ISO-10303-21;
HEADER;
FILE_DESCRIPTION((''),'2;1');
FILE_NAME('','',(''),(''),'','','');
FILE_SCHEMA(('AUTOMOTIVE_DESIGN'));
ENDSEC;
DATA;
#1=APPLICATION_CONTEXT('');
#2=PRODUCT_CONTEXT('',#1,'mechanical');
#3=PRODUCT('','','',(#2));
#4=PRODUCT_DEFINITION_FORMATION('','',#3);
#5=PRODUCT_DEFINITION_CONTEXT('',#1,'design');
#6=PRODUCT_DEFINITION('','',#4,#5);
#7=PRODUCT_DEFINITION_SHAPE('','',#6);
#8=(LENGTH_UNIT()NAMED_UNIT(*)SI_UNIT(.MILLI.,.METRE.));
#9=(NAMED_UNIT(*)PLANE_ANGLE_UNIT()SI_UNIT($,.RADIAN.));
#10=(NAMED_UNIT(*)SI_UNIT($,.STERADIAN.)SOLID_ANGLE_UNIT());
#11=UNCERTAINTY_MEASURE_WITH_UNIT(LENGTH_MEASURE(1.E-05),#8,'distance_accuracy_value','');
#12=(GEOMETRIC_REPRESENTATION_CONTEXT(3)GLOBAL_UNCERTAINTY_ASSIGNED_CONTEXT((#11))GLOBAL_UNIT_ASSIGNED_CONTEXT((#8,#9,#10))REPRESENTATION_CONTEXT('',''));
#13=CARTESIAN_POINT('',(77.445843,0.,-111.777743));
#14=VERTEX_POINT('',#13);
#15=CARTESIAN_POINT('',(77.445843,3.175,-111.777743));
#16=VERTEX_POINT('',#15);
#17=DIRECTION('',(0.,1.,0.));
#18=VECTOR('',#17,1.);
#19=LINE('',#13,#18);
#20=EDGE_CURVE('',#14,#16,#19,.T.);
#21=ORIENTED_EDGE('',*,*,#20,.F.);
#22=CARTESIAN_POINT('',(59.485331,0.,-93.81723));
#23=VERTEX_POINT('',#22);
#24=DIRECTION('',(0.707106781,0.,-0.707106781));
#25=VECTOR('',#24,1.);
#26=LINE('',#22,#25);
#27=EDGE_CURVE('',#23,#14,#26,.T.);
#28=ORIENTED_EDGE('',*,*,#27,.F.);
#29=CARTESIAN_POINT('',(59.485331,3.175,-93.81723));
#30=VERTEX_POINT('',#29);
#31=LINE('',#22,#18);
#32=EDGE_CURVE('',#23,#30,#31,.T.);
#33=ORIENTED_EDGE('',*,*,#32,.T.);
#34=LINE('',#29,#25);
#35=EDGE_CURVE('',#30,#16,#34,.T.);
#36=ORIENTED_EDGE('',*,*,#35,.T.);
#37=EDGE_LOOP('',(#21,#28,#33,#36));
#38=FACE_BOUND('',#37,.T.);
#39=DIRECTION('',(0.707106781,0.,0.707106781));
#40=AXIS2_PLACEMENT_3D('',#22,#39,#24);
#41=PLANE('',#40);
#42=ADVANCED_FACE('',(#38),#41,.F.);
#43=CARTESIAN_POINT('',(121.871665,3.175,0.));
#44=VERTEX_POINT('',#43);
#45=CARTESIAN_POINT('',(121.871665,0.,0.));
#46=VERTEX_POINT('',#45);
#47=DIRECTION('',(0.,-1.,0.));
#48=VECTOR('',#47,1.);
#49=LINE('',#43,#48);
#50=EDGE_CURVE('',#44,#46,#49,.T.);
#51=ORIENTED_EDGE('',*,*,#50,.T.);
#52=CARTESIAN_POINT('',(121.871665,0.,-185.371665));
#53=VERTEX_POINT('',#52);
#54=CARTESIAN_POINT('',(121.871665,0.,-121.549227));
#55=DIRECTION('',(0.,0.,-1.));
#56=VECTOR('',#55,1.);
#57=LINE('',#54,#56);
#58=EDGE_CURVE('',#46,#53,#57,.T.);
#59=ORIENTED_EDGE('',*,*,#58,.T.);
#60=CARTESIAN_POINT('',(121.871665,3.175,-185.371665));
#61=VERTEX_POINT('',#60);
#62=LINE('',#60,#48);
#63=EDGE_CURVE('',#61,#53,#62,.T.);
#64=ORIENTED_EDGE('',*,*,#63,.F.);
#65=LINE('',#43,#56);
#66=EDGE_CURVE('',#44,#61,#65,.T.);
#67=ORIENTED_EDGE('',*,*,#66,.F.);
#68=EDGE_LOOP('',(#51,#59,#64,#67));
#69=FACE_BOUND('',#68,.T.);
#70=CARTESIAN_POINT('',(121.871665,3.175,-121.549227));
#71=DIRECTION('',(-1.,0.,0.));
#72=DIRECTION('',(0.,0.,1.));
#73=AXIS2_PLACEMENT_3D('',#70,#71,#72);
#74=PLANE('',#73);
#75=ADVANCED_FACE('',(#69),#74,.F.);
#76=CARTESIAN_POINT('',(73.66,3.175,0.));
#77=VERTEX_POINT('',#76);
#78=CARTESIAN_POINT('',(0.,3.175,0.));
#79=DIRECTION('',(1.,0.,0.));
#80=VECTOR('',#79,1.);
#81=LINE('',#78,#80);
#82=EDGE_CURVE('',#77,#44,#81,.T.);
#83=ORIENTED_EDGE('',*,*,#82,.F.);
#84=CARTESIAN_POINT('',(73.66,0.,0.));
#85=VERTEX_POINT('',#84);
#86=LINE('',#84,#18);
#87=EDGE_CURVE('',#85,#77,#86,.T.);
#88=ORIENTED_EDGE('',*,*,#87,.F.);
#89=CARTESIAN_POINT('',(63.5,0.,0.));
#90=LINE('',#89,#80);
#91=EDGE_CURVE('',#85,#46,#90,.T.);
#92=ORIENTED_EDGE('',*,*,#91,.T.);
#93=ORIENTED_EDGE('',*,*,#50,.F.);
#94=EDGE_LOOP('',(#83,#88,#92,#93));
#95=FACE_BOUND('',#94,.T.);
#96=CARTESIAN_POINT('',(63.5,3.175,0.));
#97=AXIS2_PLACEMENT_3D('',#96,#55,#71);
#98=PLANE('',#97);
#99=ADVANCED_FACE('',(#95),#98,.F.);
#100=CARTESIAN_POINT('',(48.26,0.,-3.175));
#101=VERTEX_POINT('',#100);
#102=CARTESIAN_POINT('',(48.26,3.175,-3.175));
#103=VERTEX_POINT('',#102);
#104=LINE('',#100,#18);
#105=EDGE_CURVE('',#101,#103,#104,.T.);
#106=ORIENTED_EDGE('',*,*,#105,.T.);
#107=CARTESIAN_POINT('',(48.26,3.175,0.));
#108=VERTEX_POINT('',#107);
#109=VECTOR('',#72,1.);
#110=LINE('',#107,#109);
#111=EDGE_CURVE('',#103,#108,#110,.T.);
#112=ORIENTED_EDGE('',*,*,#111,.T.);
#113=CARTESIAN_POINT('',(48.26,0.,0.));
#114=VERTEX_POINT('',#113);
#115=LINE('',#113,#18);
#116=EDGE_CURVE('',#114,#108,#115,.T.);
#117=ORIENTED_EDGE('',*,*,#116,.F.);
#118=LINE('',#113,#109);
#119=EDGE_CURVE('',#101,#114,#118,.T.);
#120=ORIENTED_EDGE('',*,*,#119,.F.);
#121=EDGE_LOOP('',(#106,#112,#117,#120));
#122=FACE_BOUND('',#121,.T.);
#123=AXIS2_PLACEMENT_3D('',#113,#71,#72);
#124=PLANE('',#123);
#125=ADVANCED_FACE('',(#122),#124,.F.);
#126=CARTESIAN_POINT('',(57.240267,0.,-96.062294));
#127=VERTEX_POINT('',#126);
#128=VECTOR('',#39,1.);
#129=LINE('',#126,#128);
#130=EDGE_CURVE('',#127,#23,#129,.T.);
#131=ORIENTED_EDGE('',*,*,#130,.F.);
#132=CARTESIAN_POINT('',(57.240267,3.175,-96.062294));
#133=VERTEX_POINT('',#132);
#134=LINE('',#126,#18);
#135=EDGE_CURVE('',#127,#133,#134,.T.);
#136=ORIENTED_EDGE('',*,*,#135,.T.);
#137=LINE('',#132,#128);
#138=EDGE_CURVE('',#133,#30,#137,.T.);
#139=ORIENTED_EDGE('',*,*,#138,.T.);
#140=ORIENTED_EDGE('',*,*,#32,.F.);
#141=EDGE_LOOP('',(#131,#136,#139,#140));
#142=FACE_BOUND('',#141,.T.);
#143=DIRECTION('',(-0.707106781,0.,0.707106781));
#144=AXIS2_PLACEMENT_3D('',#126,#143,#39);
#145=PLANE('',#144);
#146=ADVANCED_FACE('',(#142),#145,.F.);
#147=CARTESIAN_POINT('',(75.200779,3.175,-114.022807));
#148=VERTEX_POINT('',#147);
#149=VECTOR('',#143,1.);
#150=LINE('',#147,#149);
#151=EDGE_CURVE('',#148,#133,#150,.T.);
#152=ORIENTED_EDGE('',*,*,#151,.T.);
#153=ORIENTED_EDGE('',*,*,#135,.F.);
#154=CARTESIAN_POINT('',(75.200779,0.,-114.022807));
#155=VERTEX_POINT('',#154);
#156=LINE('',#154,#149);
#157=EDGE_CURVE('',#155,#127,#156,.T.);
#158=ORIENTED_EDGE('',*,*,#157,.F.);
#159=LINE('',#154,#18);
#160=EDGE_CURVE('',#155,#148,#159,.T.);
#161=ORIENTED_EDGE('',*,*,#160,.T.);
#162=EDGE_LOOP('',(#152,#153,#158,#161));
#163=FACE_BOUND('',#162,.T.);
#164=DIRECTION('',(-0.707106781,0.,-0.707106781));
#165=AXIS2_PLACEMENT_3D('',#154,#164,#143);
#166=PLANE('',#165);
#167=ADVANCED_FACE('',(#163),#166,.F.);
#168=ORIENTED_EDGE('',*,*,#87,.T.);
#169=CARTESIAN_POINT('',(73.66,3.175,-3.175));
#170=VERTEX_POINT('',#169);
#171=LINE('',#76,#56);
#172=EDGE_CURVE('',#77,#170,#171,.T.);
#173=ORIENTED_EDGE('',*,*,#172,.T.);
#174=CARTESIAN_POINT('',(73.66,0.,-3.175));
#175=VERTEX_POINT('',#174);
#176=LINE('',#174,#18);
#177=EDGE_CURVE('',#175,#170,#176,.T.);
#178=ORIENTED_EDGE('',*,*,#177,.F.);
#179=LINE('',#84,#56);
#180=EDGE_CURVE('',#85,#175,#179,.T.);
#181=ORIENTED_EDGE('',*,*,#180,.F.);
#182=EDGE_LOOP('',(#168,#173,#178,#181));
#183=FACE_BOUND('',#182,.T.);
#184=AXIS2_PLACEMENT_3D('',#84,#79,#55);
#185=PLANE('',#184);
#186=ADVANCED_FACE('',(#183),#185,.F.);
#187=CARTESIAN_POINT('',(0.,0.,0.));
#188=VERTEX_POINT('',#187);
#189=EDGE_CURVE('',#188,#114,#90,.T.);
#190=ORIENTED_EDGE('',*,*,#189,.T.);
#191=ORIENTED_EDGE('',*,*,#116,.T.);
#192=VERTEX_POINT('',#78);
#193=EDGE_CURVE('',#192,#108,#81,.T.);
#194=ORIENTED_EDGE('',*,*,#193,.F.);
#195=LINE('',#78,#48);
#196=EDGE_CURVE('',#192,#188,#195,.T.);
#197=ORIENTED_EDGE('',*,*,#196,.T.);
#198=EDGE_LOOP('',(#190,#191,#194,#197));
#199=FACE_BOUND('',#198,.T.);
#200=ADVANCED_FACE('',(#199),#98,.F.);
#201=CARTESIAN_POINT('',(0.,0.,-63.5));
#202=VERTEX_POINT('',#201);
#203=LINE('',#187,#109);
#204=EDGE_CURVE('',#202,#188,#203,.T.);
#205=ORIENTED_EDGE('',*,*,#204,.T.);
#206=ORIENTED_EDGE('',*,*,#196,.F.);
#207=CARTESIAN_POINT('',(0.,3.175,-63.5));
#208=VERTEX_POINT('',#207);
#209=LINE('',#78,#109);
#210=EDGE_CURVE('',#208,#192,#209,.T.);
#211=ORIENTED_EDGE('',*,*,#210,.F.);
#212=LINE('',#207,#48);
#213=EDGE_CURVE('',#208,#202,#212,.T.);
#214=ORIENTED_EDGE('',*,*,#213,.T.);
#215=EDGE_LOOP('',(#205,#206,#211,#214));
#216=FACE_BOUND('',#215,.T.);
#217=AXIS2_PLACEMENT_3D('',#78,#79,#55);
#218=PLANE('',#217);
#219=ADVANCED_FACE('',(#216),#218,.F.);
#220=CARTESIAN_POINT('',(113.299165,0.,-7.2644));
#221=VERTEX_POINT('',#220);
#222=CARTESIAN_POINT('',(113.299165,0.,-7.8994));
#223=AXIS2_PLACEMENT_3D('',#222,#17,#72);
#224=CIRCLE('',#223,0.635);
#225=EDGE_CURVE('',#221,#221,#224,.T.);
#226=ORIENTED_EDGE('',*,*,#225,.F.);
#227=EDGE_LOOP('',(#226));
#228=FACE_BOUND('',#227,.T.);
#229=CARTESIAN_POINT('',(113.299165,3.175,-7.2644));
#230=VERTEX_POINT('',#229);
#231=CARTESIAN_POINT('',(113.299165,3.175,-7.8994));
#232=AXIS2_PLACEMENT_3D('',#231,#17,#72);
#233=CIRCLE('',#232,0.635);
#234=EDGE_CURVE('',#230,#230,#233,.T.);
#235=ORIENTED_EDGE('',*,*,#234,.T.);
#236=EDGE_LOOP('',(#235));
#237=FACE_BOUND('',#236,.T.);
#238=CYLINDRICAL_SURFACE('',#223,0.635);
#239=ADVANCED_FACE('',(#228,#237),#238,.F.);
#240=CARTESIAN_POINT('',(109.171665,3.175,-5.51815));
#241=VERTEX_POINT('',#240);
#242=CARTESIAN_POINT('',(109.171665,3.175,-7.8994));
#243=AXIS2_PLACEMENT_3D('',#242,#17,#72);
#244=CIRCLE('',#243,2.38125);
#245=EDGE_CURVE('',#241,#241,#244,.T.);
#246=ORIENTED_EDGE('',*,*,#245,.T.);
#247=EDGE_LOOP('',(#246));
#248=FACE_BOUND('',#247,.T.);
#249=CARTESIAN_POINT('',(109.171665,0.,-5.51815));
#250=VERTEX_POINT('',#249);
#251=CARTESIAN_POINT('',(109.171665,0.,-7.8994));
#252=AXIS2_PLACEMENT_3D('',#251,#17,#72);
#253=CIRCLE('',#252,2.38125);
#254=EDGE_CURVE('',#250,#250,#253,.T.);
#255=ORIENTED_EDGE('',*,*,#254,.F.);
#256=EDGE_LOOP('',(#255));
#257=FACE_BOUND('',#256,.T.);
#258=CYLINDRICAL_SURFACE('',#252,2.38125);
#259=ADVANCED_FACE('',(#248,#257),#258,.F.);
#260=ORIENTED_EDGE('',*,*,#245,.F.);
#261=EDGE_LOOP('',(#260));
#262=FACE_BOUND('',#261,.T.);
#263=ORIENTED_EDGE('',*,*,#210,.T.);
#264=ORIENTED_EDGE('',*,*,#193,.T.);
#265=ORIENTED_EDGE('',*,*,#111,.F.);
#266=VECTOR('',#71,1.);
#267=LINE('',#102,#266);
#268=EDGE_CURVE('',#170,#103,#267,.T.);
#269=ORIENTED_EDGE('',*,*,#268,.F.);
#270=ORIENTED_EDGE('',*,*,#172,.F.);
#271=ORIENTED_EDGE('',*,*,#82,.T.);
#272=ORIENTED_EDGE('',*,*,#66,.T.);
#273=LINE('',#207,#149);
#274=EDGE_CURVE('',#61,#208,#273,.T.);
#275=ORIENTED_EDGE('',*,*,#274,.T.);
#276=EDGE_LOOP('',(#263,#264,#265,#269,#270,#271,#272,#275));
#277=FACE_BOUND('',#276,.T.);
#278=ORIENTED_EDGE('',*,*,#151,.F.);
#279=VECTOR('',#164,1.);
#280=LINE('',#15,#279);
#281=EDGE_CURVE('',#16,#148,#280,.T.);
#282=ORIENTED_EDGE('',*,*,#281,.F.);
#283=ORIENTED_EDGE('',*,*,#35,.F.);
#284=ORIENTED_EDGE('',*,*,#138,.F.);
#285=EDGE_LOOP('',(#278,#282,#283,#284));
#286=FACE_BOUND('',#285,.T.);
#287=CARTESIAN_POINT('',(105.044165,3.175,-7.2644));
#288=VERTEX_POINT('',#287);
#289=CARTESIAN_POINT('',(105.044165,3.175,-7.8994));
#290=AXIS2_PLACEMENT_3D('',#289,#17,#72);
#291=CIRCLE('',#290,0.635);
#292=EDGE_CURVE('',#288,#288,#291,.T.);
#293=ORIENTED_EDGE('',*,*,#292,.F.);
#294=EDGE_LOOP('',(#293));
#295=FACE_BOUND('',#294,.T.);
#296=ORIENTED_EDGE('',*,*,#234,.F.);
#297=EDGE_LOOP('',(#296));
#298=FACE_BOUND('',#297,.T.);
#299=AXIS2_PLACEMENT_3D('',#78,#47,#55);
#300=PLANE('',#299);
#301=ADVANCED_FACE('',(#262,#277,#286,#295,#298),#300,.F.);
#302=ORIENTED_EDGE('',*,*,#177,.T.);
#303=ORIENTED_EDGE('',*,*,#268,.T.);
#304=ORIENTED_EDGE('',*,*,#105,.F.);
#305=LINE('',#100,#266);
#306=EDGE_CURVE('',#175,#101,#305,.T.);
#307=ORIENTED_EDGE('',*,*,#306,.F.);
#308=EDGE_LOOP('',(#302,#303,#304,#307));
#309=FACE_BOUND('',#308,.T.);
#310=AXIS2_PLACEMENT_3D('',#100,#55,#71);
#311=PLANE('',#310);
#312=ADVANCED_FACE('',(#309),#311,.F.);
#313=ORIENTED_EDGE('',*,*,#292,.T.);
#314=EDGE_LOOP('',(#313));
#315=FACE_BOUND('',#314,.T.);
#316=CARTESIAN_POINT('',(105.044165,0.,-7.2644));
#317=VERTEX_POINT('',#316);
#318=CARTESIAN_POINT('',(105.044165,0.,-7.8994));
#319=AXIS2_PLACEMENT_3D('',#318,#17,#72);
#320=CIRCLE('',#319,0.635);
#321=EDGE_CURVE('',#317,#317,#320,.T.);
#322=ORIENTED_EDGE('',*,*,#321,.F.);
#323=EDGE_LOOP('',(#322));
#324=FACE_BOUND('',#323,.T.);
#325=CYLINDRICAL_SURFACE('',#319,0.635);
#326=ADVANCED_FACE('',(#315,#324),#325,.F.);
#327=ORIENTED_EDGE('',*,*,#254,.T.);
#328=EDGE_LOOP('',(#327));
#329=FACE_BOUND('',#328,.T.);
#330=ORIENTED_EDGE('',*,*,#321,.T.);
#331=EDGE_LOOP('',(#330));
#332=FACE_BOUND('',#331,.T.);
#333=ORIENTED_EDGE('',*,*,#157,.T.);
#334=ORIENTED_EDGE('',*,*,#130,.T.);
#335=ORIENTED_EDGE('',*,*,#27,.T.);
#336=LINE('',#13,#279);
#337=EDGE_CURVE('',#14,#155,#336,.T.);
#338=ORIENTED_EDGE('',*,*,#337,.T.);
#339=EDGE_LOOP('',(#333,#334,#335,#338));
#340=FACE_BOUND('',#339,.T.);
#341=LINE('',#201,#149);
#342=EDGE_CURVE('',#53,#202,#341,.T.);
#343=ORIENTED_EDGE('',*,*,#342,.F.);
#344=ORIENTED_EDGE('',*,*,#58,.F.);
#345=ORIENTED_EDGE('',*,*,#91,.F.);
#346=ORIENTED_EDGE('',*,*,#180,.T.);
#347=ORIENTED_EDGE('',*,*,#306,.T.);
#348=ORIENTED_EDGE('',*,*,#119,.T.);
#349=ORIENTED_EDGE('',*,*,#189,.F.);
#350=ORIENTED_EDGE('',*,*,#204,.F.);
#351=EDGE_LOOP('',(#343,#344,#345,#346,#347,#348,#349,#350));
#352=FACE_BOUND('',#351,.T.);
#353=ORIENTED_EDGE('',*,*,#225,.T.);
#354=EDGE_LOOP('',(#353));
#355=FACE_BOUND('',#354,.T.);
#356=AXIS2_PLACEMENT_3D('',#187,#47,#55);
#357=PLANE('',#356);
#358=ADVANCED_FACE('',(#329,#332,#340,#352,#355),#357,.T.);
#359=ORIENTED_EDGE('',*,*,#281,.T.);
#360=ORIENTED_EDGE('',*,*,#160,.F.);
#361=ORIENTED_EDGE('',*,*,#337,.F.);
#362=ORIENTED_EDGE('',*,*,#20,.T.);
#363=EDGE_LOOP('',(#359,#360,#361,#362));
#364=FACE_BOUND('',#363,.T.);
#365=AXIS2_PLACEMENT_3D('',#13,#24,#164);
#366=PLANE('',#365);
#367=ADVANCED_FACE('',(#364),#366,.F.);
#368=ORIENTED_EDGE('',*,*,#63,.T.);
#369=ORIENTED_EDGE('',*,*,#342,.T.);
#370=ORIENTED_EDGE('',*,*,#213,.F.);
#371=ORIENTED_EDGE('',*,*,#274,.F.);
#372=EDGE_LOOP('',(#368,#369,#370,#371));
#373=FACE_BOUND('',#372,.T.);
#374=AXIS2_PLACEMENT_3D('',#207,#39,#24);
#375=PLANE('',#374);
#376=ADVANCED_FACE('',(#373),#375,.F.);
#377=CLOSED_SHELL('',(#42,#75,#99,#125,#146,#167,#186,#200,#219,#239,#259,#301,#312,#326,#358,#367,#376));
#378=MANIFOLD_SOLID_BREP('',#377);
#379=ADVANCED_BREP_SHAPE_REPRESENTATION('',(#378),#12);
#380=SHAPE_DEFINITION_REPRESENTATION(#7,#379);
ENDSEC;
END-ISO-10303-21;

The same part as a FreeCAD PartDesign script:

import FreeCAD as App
import Part
import Sketcher

V = App.Vector
Q = App.Units.Quantity


def add_polygon(sketch, points):
    """Adds a closed chain of lines whose ends are joined by coincident constraints."""
    first, n = sketch.GeometryCount, len(points)
    for a, b in zip(points, points[1:] + points[:1]):
        sketch.addGeometry(Part.LineSegment(App.Vector(*a, 0), App.Vector(*b, 0)), False)
    for i in range(n):
        sketch.addConstraint(Sketcher.Constraint("Coincident", first + i, 2, first + (i + 1) % n, 1))

doc = App.newDocument("Part")
body = doc.addObject("PartDesign::Body", "Body")

# Sketch on XZ plane
sketch1 = doc.addObject("Sketcher::SketchObject", "Sketch")
body.addObject(sketch1)
sketch1.AttachmentSupport = (doc.XZ_Plane, [""])
sketch1.MapMode = "FlatFace"
add_polygon(sketch1, [(122, -185), (0, -64), (0, 0), (122, 0)])  # lines 0-3
sketch1.addConstraint([
    Sketcher.Constraint("Vertical", 1),
    Sketcher.Constraint("Horizontal", 2),
    Sketcher.Constraint("Vertical", 3),
    Sketcher.Constraint("Coincident", 1, 2, -1, 1),
    Sketcher.Constraint("DistanceY", 1, 1, 1, 2, Q("2.5 in")),
    Sketcher.Constraint("Angle", 0, Q("135 deg")),
    Sketcher.Constraint("Distance", 0, Q("172.352561 mm")),
])
pad1 = doc.addObject("PartDesign::Pad", "Pad")
body.addObject(pad1)
pad1.Profile = sketch1
pad1.Length = Q("0.125 in")
pad1.Reversed = True

# Sketch on XZ plane
sketch2 = doc.addObject("Sketcher::SketchObject", "Sketch001")
body.addObject(sketch2)
sketch2.AttachmentSupport = (doc.XZ_Plane, [""])
sketch2.MapMode = "FlatFace"
sketch2.AttachmentOffset = App.Placement(V(0, 0, -0.125 * 25.4), App.Rotation())
sketch2.addGeometry(Part.Circle(V(109.2, -7.9, 0), V(0, 0, 1), 2.4), False)  # 0
sketch2.addGeometry(Part.Circle(V(105, -7.9, 0), V(0, 0, 1), 0.6), False)  # 1
sketch2.addGeometry(Part.Circle(V(113.3, -7.9, 0), V(0, 0, 1), 0.6), False)  # 2
add_polygon(sketch2, [(57.2, -96.1), (59.5, -93.8), (77.4, -111.8), (75.2, -114)])  # lines 3-6
add_polygon(sketch2, [(48.3, -3.2), (48.3, 0), (73.7, 0), (73.7, -3.2)])  # lines 7-10
sketch2.addConstraint([
    Sketcher.Constraint("Vertical", 7),
    Sketcher.Constraint("Horizontal", 8),
    Sketcher.Constraint("Vertical", 9),
    Sketcher.Constraint("Horizontal", 10),
    Sketcher.Constraint("Equal", 1, 2),
    Sketcher.Constraint("PointOnObject", 7, 2, -1),
    Sketcher.Constraint("Perpendicular", 3, 4),
    Sketcher.Constraint("Perpendicular", 4, 5),
    Sketcher.Constraint("Perpendicular", 5, 6),
    Sketcher.Constraint("Horizontal", 0, 3, 1, 3),
    Sketcher.Constraint("Horizontal", 1, 3, 2, 3),
    Sketcher.Constraint("Diameter", 1, Q("0.05 in")),
    Sketcher.Constraint("DistanceX", 8, 1, 8, 2, Q("1 in")),
    Sketcher.Constraint("Distance", 4, Q("1 in")),
    Sketcher.Constraint("Diameter", 0, Q("0.1875 in")),
    Sketcher.Constraint("Angle", 3, Q("45 deg")),
    Sketcher.Constraint("DistanceX", -1, 1, 7, 2, Q("1.9 in")),
    Sketcher.Constraint("DistanceY", 7, 1, 7, 2, Q("0.125 in")),
    Sketcher.Constraint("Distance", 3, Q("0.125 in")),
    Sketcher.Constraint("DistanceY", 0, 3, -1, 1, Q("0.311 in")),
    Sketcher.Constraint("DistanceX", 1, 3, 2, 3, Q("0.325 in")),
    Sketcher.Constraint("DistanceX", 1, 3, 0, 3, Q("0.1625 in")),
    Sketcher.Constraint("DistanceX", -1, 1, 3, 2, Q("59.485331 mm")),
    Sketcher.Constraint("DistanceY", 3, 2, -1, 1, Q("93.81723 mm")),
    Sketcher.Constraint("DistanceX", 4, 2, 1, 3, Q("27.598322 mm")),
])
pocket1 = doc.addObject("PartDesign::Pocket", "Pocket")
body.addObject(pocket1)
pocket1.Profile = sketch2
pocket1.Length = Q("0.125 in")
pocket1.Reversed = True

doc.recompute()
